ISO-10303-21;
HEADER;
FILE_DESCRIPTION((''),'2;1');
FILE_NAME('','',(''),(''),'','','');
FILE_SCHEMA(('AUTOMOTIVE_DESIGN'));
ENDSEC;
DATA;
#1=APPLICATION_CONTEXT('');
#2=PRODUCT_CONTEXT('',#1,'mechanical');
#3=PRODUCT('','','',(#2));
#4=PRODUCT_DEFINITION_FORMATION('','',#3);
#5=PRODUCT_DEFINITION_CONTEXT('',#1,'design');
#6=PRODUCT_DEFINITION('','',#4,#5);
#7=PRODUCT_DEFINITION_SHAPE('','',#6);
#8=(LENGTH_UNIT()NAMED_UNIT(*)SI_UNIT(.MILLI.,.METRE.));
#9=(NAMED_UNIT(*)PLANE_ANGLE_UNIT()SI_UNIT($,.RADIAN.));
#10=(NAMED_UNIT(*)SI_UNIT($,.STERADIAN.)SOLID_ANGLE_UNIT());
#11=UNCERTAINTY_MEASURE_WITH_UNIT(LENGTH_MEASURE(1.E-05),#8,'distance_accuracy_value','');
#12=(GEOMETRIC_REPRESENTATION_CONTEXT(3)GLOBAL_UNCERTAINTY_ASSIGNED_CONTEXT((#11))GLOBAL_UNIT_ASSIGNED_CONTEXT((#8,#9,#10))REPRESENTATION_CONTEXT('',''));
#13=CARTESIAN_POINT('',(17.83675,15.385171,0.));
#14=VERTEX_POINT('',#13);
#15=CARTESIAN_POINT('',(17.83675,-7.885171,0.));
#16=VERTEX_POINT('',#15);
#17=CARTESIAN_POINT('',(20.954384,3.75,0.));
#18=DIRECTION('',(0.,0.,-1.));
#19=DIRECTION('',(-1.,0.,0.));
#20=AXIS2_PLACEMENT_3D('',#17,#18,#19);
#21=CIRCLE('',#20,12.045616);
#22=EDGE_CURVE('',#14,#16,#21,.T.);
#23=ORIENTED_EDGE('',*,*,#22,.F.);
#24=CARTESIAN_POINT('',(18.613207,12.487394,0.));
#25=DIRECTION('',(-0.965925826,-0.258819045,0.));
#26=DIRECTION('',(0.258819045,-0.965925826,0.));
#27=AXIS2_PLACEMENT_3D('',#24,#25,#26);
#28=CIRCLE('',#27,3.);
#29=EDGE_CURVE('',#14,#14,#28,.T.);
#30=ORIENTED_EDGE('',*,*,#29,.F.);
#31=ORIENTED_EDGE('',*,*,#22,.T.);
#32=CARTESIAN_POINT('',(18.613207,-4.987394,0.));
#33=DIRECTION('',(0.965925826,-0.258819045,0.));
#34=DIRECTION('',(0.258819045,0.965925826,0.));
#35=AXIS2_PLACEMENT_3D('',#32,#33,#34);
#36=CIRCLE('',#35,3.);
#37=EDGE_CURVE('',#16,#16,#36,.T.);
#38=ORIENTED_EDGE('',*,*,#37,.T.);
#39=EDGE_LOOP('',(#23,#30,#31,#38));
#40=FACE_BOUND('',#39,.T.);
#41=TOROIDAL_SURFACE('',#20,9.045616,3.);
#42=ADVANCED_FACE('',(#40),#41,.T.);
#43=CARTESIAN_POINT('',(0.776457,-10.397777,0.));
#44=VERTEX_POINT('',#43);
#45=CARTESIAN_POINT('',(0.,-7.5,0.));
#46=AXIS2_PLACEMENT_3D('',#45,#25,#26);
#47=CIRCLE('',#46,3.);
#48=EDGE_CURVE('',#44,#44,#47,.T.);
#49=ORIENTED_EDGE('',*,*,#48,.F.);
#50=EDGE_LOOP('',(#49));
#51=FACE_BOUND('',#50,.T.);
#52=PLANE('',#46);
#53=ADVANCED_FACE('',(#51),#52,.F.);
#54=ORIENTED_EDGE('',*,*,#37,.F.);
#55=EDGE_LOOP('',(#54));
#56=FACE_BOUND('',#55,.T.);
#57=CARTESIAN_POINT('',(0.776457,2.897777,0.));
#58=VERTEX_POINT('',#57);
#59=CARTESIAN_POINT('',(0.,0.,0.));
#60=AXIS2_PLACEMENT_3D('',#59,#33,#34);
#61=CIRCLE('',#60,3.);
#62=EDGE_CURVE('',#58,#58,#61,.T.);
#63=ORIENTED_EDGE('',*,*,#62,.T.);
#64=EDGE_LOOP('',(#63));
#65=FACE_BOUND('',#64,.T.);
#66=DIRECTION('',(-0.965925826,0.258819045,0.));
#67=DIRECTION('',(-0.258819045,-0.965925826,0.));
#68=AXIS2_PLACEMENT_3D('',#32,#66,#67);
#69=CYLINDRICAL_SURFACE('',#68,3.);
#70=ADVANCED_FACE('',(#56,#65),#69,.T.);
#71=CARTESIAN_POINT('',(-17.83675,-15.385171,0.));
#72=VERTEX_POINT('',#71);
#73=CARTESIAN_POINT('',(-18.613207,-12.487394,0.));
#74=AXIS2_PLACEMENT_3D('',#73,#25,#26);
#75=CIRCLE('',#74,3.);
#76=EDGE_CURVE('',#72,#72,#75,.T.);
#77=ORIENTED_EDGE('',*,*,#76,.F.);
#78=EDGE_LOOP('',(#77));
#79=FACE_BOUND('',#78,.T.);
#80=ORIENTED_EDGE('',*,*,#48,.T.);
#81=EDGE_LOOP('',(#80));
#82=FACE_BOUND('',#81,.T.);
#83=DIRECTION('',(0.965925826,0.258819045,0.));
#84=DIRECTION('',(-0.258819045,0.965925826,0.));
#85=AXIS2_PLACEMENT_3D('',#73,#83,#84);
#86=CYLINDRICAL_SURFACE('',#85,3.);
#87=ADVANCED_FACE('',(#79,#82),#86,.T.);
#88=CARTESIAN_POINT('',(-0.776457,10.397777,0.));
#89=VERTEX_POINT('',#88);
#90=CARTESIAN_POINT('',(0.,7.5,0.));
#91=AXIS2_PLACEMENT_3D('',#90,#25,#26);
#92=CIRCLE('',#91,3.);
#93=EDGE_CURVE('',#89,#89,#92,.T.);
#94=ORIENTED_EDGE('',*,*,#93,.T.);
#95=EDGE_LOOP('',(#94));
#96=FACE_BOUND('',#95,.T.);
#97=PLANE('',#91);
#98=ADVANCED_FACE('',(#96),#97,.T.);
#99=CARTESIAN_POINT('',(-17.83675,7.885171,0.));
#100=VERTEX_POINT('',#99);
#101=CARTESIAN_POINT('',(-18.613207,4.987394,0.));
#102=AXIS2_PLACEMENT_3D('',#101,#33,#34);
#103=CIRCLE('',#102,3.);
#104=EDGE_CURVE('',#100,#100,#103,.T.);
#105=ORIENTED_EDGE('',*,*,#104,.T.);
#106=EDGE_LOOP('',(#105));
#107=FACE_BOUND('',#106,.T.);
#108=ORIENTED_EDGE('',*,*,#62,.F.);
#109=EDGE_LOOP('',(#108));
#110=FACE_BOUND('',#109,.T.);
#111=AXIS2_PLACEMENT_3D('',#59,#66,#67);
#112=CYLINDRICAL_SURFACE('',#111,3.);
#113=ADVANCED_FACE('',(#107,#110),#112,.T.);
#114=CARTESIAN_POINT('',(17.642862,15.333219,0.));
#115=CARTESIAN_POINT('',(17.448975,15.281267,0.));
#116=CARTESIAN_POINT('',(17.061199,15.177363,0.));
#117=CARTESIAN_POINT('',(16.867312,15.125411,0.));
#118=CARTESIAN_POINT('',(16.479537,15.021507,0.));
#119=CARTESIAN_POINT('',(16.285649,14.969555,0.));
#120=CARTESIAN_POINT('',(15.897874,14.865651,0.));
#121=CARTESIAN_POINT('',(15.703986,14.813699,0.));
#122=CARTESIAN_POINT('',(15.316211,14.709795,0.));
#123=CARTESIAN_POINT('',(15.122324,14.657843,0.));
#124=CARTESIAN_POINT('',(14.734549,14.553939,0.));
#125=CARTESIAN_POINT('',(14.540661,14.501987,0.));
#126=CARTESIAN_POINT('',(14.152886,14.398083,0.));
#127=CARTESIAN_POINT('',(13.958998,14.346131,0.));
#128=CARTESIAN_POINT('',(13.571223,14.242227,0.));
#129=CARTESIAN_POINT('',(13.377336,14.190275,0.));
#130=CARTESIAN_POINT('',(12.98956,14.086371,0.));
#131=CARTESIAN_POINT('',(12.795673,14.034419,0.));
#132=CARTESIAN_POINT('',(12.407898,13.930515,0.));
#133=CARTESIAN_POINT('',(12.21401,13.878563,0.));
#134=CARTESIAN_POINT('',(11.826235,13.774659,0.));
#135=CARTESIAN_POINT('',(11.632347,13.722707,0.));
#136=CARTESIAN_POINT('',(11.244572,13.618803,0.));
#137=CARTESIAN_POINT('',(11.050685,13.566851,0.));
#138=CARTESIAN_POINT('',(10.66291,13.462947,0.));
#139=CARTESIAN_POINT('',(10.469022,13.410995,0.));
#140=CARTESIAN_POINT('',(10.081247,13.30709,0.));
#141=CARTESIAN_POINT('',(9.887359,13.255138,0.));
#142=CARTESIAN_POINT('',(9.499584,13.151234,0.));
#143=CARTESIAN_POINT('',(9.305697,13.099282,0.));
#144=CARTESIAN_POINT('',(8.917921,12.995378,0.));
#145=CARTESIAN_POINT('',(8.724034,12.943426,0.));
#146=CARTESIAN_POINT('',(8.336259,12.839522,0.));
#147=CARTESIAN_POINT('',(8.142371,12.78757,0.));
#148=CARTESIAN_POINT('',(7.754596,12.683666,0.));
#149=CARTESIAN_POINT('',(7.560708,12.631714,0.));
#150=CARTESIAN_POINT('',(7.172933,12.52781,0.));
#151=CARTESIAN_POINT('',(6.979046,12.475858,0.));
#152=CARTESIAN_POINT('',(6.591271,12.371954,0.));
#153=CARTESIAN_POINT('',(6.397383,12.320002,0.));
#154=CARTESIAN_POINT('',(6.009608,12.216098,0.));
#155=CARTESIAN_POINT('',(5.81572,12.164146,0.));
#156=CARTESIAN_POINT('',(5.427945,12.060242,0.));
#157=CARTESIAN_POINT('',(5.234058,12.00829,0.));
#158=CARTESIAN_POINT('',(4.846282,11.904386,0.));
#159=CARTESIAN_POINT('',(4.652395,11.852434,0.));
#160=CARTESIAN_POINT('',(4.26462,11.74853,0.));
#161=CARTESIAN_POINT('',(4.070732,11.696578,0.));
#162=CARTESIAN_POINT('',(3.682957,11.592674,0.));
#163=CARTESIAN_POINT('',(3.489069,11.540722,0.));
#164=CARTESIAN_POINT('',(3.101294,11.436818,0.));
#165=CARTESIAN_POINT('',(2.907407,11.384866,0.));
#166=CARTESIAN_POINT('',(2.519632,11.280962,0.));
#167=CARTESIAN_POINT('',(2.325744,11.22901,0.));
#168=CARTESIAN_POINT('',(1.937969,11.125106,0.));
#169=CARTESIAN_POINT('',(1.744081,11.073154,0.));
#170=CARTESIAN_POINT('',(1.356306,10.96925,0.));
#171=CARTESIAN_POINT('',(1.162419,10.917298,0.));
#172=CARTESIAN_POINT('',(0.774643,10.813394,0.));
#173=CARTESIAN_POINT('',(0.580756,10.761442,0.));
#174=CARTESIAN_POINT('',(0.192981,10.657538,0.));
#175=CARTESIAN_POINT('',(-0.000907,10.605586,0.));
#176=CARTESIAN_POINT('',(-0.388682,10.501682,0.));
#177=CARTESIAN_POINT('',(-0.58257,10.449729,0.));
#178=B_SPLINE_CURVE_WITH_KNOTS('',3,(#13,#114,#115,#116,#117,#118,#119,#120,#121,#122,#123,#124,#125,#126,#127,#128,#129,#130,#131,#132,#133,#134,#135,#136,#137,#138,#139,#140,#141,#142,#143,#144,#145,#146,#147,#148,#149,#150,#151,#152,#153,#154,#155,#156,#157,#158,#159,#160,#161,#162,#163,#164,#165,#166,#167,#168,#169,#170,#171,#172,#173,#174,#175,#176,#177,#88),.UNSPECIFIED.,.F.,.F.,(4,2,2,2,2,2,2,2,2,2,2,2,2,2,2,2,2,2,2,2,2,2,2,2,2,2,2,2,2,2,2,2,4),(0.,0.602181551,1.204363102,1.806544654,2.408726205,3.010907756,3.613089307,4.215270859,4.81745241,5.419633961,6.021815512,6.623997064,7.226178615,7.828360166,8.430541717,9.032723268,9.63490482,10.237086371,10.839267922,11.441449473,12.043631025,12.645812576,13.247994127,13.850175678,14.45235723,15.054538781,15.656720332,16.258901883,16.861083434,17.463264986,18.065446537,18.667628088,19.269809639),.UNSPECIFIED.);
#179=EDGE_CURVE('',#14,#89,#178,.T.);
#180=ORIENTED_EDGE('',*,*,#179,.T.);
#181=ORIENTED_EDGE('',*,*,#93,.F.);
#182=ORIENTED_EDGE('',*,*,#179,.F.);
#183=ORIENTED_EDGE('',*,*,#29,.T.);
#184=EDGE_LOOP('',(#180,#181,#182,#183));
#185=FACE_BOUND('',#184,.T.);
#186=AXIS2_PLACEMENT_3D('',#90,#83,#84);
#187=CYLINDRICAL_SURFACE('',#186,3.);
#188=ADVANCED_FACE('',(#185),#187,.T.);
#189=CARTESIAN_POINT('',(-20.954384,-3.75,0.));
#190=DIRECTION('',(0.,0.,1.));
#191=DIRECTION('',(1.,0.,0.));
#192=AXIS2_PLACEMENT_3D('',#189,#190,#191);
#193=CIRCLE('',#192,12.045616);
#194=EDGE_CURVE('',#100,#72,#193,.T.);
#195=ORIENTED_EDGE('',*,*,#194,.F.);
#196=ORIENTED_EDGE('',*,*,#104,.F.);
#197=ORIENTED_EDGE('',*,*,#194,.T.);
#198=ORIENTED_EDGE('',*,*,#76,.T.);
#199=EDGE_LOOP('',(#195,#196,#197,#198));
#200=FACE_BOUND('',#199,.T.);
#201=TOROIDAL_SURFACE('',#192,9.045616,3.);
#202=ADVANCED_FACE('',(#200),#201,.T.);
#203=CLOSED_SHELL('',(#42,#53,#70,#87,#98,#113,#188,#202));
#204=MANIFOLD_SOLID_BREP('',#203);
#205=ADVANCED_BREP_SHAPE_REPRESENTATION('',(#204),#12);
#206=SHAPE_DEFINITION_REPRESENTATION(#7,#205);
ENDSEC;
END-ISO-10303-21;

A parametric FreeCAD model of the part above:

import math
import FreeCAD as App
import Part
import Sketcher
from FreeCAD import Vector
Q = App.Units.Quantity

doc = App.newDocument("Part")
body = doc.addObject("PartDesign::Body", "Body")

sketch1 = doc.addObject("Sketcher::SketchObject", "Sketch")
body.addObject(sketch1)
sketch1.Placement = App.Placement(Vector(0, 7.5, 0), App.Rotation(Vector(-0.258819045, 0.965925826, 0), Vector(0, 0, 0.999999999), Vector(0.965925826, 0.258819045, 0), "ZXY"))
sketch1.addGeometry(Part.Circle(Vector(0, 0, 0), Vector(0, 0, 1), 3), False)
sketch1.addConstraint(Sketcher.Constraint("Coincident", 0, 3, -1, 1))
sketch1.addConstraint(Sketcher.Constraint("Diameter", 0, Q("6 mm")))

sketch2 = doc.addObject("Sketcher::SketchObject", "Sketch001")
body.addObject(sketch2)
sketch2.AttachmentSupport = (doc.XY_Plane, [""])
sketch2.MapMode = "FlatFace"
sketch2.addGeometry(Part.LineSegment(Vector(0, 8, 0), Vector(19, 12, 0)), False)
sketch2.addGeometry(Part.ArcOfCircle(Part.Circle(Vector(21, 4, 0), Vector(0, 0, 1), 9), math.radians(-105), math.radians(105)), False)
sketch2.addGeometry(Part.LineSegment(Vector(19, -5, 0), Vector(-19, 5, 0)), False)
sketch2.addGeometry(Part.ArcOfCircle(Part.Circle(Vector(-21, -4, 0), Vector(0, 0, 1), 9), math.radians(75), math.radians(285)), False)
sketch2.addGeometry(Part.LineSegment(Vector(-19, -12, 0), Vector(0, -8, 0)), False)
sketch2.addConstraint(Sketcher.Constraint("Tangent", 0, 2, 1, 2))
sketch2.addConstraint(Sketcher.Constraint("Tangent", 1, 1, 2, 1))
sketch2.addConstraint(Sketcher.Constraint("Tangent", 2, 2, 3, 1))
sketch2.addConstraint(Sketcher.Constraint("Tangent", 3, 2, 4, 1))
sketch2.addConstraint(Sketcher.Constraint("Equal", 1, 3))
sketch2.addConstraint(Sketcher.Constraint("Symmetric", 1, 3, 3, 3, -1, 1))
sketch2.addConstraint(Sketcher.Constraint("Symmetric", 0, 1, 4, 2, -1, 1))
sketch2.addConstraint(Sketcher.Constraint("PointOnObject", 0, 1, -2))
sketch2.addConstraint(Sketcher.Constraint("Vertical", 0, 2, 1, 1))
sketch2.addConstraint(Sketcher.Constraint("Angle", 0, Q("15 deg")))
sketch2.addConstraint(Sketcher.Constraint("DistanceY", 4, 2, 0, 1, Q("15 mm")))
sketch2.addConstraint(Sketcher.Constraint("Radius", 1, Q("9.045616 mm")))
doc.recompute()

additivepipe = doc.addObject("PartDesign::AdditivePipe", "AdditivePipe")
body.addObject(additivepipe)
additivepipe.Profile = sketch1
additivepipe.Spine = (sketch2, ["Edge1", "Edge2", "Edge3", "Edge4", "Edge5"])

doc.recompute()
